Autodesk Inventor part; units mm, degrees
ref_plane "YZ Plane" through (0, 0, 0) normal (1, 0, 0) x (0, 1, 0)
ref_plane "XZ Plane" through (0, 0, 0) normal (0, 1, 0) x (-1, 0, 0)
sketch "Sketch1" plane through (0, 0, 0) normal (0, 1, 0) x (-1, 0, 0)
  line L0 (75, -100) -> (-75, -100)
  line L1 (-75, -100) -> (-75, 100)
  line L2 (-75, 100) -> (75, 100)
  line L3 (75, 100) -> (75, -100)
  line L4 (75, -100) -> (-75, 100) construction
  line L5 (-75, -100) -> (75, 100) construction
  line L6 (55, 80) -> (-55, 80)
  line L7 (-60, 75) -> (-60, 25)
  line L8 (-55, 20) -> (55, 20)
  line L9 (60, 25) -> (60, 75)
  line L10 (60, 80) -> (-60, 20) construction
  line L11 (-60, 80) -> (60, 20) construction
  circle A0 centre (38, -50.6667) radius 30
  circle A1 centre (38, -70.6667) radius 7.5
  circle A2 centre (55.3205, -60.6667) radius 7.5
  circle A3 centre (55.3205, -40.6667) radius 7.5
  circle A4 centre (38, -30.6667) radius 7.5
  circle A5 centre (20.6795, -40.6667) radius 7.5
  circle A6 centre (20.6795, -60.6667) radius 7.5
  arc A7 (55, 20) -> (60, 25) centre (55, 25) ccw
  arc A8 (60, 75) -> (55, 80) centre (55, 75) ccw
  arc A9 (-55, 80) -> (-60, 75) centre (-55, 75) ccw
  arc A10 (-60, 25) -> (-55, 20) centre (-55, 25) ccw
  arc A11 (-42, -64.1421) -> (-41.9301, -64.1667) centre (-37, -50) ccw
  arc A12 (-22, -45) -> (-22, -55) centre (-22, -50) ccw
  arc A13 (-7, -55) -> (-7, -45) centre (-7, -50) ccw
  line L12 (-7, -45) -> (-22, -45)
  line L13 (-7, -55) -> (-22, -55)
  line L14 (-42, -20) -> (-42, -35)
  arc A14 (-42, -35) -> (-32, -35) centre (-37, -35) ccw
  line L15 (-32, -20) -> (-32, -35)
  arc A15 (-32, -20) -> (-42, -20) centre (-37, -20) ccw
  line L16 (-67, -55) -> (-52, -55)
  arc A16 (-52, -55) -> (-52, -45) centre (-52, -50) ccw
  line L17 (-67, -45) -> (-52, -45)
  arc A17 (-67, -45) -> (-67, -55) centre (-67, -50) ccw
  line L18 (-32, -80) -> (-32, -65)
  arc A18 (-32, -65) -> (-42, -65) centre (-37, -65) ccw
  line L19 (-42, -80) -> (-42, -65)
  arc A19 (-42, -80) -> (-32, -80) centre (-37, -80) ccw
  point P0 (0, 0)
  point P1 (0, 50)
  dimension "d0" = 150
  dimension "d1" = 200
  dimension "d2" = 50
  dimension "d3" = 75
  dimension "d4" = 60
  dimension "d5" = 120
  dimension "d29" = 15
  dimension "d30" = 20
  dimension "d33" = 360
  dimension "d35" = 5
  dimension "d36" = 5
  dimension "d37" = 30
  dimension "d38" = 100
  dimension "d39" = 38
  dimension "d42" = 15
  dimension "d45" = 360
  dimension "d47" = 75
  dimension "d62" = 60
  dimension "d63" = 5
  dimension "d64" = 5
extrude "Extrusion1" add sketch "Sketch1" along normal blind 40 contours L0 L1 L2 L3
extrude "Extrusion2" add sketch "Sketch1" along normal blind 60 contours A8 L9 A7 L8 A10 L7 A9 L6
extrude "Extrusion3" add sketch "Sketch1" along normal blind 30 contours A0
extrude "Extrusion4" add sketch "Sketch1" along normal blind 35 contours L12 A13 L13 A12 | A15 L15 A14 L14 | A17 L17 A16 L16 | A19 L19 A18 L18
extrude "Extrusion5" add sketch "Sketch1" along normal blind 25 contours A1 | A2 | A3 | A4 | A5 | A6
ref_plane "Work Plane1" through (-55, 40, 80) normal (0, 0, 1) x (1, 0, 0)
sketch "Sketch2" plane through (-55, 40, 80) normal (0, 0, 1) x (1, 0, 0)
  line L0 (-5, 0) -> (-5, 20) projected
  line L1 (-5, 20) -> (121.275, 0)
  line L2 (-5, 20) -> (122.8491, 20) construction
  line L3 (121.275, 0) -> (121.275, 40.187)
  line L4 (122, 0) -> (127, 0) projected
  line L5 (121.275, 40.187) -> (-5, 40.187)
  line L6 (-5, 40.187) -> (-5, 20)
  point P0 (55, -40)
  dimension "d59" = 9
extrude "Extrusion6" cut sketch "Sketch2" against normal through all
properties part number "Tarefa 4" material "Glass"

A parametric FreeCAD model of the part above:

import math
import FreeCAD as App
import Part
import Sketcher
from FreeCAD import Vector
Q = App.Units.Quantity


def add_polygon(sketch, points):
    """Adds a closed chain of lines whose ends are joined by coincident constraints."""
    first, n = sketch.GeometryCount, len(points)
    for a, b in zip(points, points[1:] + points[:1]):
        sketch.addGeometry(Part.LineSegment(App.Vector(*a, 0), App.Vector(*b, 0)), False)
    for i in range(n):
        sketch.addConstraint(Sketcher.Constraint("Coincident", first + i, 2, first + (i + 1) % n, 1))

doc = App.newDocument("Part")
body = doc.addObject("PartDesign::Body", "Body")

# Sketch on XZ plane
sketch1 = body.newObject("Sketcher::SketchObject", "Sketch")
sketch1.AttachmentSupport = (doc.getObject("XZ_Plane"), [""])
sketch1.MapMode = "FlatFace"
add_polygon(sketch1, [(75, -100), (-75, -100), (-75, 100), (75, 100)])  # lines 0-3
sketch1.addGeometry(Part.LineSegment(Vector(32, -65, 0), Vector(32, -80, 0)), False)  # 4
sketch1.addGeometry(Part.ArcOfCircle(Part.Circle(Vector(37, -80, 0), Vector(0, 0, 1), 5), math.radians(180), math.radians(360)), False)  # 5
sketch1.addGeometry(Part.LineSegment(Vector(42, -80, 0), Vector(42, -65, 0)), False)  # 6
sketch1.addGeometry(Part.ArcOfCircle(Part.Circle(Vector(37, -65, 0), Vector(0, 0, 1), 5), math.radians(0), math.radians(180)), False)  # 7
sketch1.addGeometry(Part.LineSegment(Vector(52, -55, 0), Vector(67, -55, 0)), False)  # 8
sketch1.addGeometry(Part.ArcOfCircle(Part.Circle(Vector(67, -50, 0), Vector(0, 0, 1), 5), math.radians(-90), math.radians(90)), False)  # 9
sketch1.addGeometry(Part.LineSegment(Vector(67, -45, 0), Vector(52, -45, 0)), False)  # 10
sketch1.addGeometry(Part.ArcOfCircle(Part.Circle(Vector(52, -50, 0), Vector(0, 0, 1), 5), math.radians(90), math.radians(270)), False)  # 11
sketch1.addGeometry(Part.LineSegment(Vector(42, -35, 0), Vector(42, -20, 0)), False)  # 12
sketch1.addGeometry(Part.ArcOfCircle(Part.Circle(Vector(37, -20, 0), Vector(0, 0, 1), 5), math.radians(0), math.radians(180)), False)  # 13
sketch1.addGeometry(Part.LineSegment(Vector(32, -20, 0), Vector(32, -35, 0)), False)  # 14
sketch1.addGeometry(Part.ArcOfCircle(Part.Circle(Vector(37, -35, 0), Vector(0, 0, 1), 5), math.radians(180), math.radians(360)), False)  # 15
sketch1.addGeometry(Part.ArcOfCircle(Part.Circle(Vector(22, -50, 0), Vector(0, 0, 1), 5), math.radians(-90), math.radians(90)), False)  # 16
sketch1.addGeometry(Part.LineSegment(Vector(22, -45, 0), Vector(7, -45, 0)), False)  # 17
sketch1.addGeometry(Part.ArcOfCircle(Part.Circle(Vector(7, -50, 0), Vector(0, 0, 1), 5), math.radians(90), math.radians(270)), False)  # 18
sketch1.addGeometry(Part.LineSegment(Vector(7, -55, 0), Vector(22, -55, 0)), False)  # 19
sketch1.addGeometry(Part.Circle(Vector(-38, -50.6667, 0), Vector(0, 0, 1), 30), False)  # 20
sketch1.addGeometry(Part.LineSegment(Vector(55, 80, 0), Vector(-55, 80, 0)), False)  # 21
sketch1.addGeometry(Part.ArcOfCircle(Part.Circle(Vector(-55, 75, 0), Vector(0, 0, 1), 5), math.radians(90), math.radians(180)), False)  # 22
sketch1.addGeometry(Part.LineSegment(Vector(-60, 75, 0), Vector(-60, 25, 0)), False)  # 23
sketch1.addGeometry(Part.ArcOfCircle(Part.Circle(Vector(-55, 25, 0), Vector(0, 0, 1), 5), math.radians(180), math.radians(270)), False)  # 24
sketch1.addGeometry(Part.LineSegment(Vector(-55, 20, 0), Vector(55, 20, 0)), False)  # 25
sketch1.addGeometry(Part.ArcOfCircle(Part.Circle(Vector(55, 25, 0), Vector(0, 0, 1), 5), math.radians(-90), math.radians(0)), False)  # 26
sketch1.addGeometry(Part.LineSegment(Vector(60, 25, 0), Vector(60, 75, 0)), False)  # 27
sketch1.addGeometry(Part.ArcOfCircle(Part.Circle(Vector(55, 75, 0), Vector(0, 0, 1), 5), math.radians(0), math.radians(90)), False)  # 28
sketch1.addConstraint(Sketcher.Constraint("Tangent", 4, 2, 5, 1))
sketch1.addConstraint(Sketcher.Constraint("Tangent", 5, 2, 6, 1))
sketch1.addConstraint(Sketcher.Constraint("Tangent", 6, 2, 7, 1))
sketch1.addConstraint(Sketcher.Constraint("Tangent", 7, 2, 4, 1))
sketch1.addConstraint(Sketcher.Constraint("Tangent", 8, 2, 9, 1))
sketch1.addConstraint(Sketcher.Constraint("Tangent", 9, 2, 10, 1))
sketch1.addConstraint(Sketcher.Constraint("Tangent", 10, 2, 11, 1))
sketch1.addConstraint(Sketcher.Constraint("Tangent", 11, 2, 8, 1))
sketch1.addConstraint(Sketcher.Constraint("Tangent", 12, 2, 13, 1))
sketch1.addConstraint(Sketcher.Constraint("Tangent", 13, 2, 14, 1))
sketch1.addConstraint(Sketcher.Constraint("Tangent", 14, 2, 15, 1))
sketch1.addConstraint(Sketcher.Constraint("Tangent", 15, 2, 12, 1))
sketch1.addConstraint(Sketcher.Constraint("Tangent", 16, 2, 17, 1))
sketch1.addConstraint(Sketcher.Constraint("Tangent", 17, 2, 18, 1))
sketch1.addConstraint(Sketcher.Constraint("Tangent", 18, 2, 19, 1))
sketch1.addConstraint(Sketcher.Constraint("Tangent", 19, 2, 16, 1))
sketch1.addConstraint(Sketcher.Constraint("Tangent", 21, 2, 22, 1))
sketch1.addConstraint(Sketcher.Constraint("Tangent", 22, 2, 23, 1))
sketch1.addConstraint(Sketcher.Constraint("Tangent", 23, 2, 24, 1))
sketch1.addConstraint(Sketcher.Constraint("Tangent", 24, 2, 25, 1))
sketch1.addConstraint(Sketcher.Constraint("Tangent", 25, 2, 26, 1))
sketch1.addConstraint(Sketcher.Constraint("Tangent", 26, 2, 27, 1))
sketch1.addConstraint(Sketcher.Constraint("Tangent", 27, 2, 28, 1))
sketch1.addConstraint(Sketcher.Constraint("Tangent", 28, 2, 21, 1))
sketch1.addConstraint(Sketcher.Constraint("Horizontal", 0))
sketch1.addConstraint(Sketcher.Constraint("Vertical", 1))
sketch1.addConstraint(Sketcher.Constraint("Horizontal", 2))
sketch1.addConstraint(Sketcher.Constraint("Vertical", 3))
sketch1.addConstraint(Sketcher.Constraint("Vertical", 4))
sketch1.addConstraint(Sketcher.Constraint("Vertical", 6))
sketch1.addConstraint(Sketcher.Constraint("Horizontal", 8))
sketch1.addConstraint(Sketcher.Constraint("Horizontal", 10))
sketch1.addConstraint(Sketcher.Constraint("Vertical", 12))
sketch1.addConstraint(Sketcher.Constraint("Vertical", 14))
sketch1.addConstraint(Sketcher.Constraint("Horizontal", 17))
sketch1.addConstraint(Sketcher.Constraint("Horizontal", 19))
sketch1.addConstraint(Sketcher.Constraint("Horizontal", 21))
sketch1.addConstraint(Sketcher.Constraint("Vertical", 23))
sketch1.addConstraint(Sketcher.Constraint("Horizontal", 25))
sketch1.addConstraint(Sketcher.Constraint("Vertical", 27))
sketch1.addConstraint(Sketcher.Constraint("Equal", 7, 9))
sketch1.addConstraint(Sketcher.Constraint("Equal", 11, 13))
sketch1.addConstraint(Sketcher.Constraint("Equal", 15, 16))
sketch1.addConstraint(Sketcher.Constraint("Equal", 18, 22))
sketch1.addConstraint(Sketcher.Constraint("Equal", 22, 24))
sketch1.addConstraint(Sketcher.Constraint("Equal", 24, 26))
sketch1.addConstraint(Sketcher.Constraint("Equal", 26, 28))
sketch1.addConstraint(Sketcher.Constraint("Symmetric", 0, 2, 2, 2, -1, 1))
sketch1.addConstraint(Sketcher.Constraint("Horizontal", 11, 3, 16, 3))
sketch1.addConstraint(Sketcher.Constraint("Vertical", 7, 3, 13, 3))
sketch1.addConstraint(Sketcher.Constraint("Equal", 10, 17))
sketch1.addConstraint(Sketcher.Constraint("Equal", 19, 4))
sketch1.addConstraint(Sketcher.Constraint("Equal", 6, 12))
sketch1.addConstraint(Sketcher.Constraint("Diameter", 20, Q("60 mm")))
sketch1.addConstraint(Sketcher.Constraint("Radius", 5, Q("5 mm")))
sketch1.addConstraint(Sketcher.Constraint("DistanceX", 0, 2, 0, 1, Q("150 mm")))
sketch1.addConstraint(Sketcher.Constraint("DistanceX", 8, 1, 8, 2, Q("15 mm")))
sketch1.addConstraint(Sketcher.Constraint("DistanceY", 1, 1, 1, 2, Q("200 mm")))
sketch1.addConstraint(Sketcher.Constraint("DistanceY", 23, 2, 23, 1, Q("50 mm")))
sketch1.addConstraint(Sketcher.Constraint("DistanceY", 9, 3, -1, 1, Q("50 mm")))
sketch1.addConstraint(Sketcher.Constraint("DistanceY", 13, 3, -1, 1, Q("20 mm")))
sketch1.addConstraint(Sketcher.Constraint("DistanceX", 20, 3, -1, 1, Q("38 mm")))
sketch1.addConstraint(Sketcher.Constraint("DistanceY", -1, 1, 22, 3, Q("75 mm")))
sketch1.addConstraint(Sketcher.Constraint("DistanceX", 22, 2, -1, 1, Q("60 mm")))
sketch1.addConstraint(Sketcher.Constraint("DistanceX", -1, 1, 26, 2, Q("60 mm")))
sketch1.addConstraint(Sketcher.Constraint("DistanceX", 7, 3, 9, 3, Q("30 mm")))
sketch1.addConstraint(Sketcher.Constraint("DistanceY", 7, 3, 9, 3, Q("15 mm")))
sketch1.addConstraint(Sketcher.Constraint("DistanceX", 16, 3, 7, 3, Q("15 mm")))
sketch1.addConstraint(Sketcher.Constraint("DistanceX", 20, 3, 16, 3, Q("60 mm")))
sketch1.addConstraint(Sketcher.Constraint("DistanceY", 20, 3, -1, 1, Q("50.6667 mm")))
pad1 = body.newObject("PartDesign::Pad", "Pad")
pad1.Profile = sketch1
pad1.Length = 40
pad1.Reversed = True

# Sketch on XZ plane
sketch2 = body.newObject("Sketcher::SketchObject", "Sketch001")
sketch2.AttachmentSupport = (doc.getObject("XZ_Plane"), [""])
sketch2.MapMode = "FlatFace"
sketch2.addGeometry(Part.ArcOfCircle(Part.Circle(Vector(-55, 75, 0), Vector(0, 0, 1), 5), math.radians(90), math.radians(180)), False)
sketch2.addGeometry(Part.LineSegment(Vector(-55, 80, 0), Vector(55, 80, 0)), False)
sketch2.addGeometry(Part.ArcOfCircle(Part.Circle(Vector(55, 75, 0), Vector(0, 0, 1), 5), math.radians(0), math.radians(90)), False)
sketch2.addGeometry(Part.LineSegment(Vector(60, 75, 0), Vector(60, 25, 0)), False)
sketch2.addGeometry(Part.ArcOfCircle(Part.Circle(Vector(55, 25, 0), Vector(0, 0, 1), 5), math.radians(-90), math.radians(0)), False)
sketch2.addGeometry(Part.LineSegment(Vector(55, 20, 0), Vector(-55, 20, 0)), False)
sketch2.addGeometry(Part.ArcOfCircle(Part.Circle(Vector(-55, 25, 0), Vector(0, 0, 1), 5), math.radians(180), math.radians(270)), False)
sketch2.addGeometry(Part.LineSegment(Vector(-60, 25, 0), Vector(-60, 75, 0)), False)
sketch2.addConstraint(Sketcher.Constraint("Tangent", 0, 1, 1, 1))
sketch2.addConstraint(Sketcher.Constraint("Tangent", 1, 2, 2, 2))
sketch2.addConstraint(Sketcher.Constraint("Tangent", 2, 1, 3, 1))
sketch2.addConstraint(Sketcher.Constraint("Tangent", 3, 2, 4, 2))
sketch2.addConstraint(Sketcher.Constraint("Tangent", 4, 1, 5, 1))
sketch2.addConstraint(Sketcher.Constraint("Tangent", 5, 2, 6, 2))
sketch2.addConstraint(Sketcher.Constraint("Tangent", 6, 1, 7, 1))
sketch2.addConstraint(Sketcher.Constraint("Tangent", 7, 2, 0, 2))
sketch2.addConstraint(Sketcher.Constraint("Horizontal", 1))
sketch2.addConstraint(Sketcher.Constraint("Vertical", 3))
sketch2.addConstraint(Sketcher.Constraint("Horizontal", 5))
sketch2.addConstraint(Sketcher.Constraint("Vertical", 7))
sketch2.addConstraint(Sketcher.Constraint("Equal", 0, 2))
sketch2.addConstraint(Sketcher.Constraint("Equal", 2, 4))
sketch2.addConstraint(Sketcher.Constraint("Equal", 4, 6))
sketch2.addConstraint(Sketcher.Constraint("Radius", 0, Q("5 mm")))
sketch2.addConstraint(Sketcher.Constraint("DistanceY", 3, 2, 3, 1, Q("50 mm")))
sketch2.addConstraint(Sketcher.Constraint("DistanceY", -1, 1, 0, 3, Q("75 mm")))
sketch2.addConstraint(Sketcher.Constraint("DistanceX", -1, 1, 2, 1, Q("60 mm")))
sketch2.addConstraint(Sketcher.Constraint("DistanceX", 6, 1, -1, 1, Q("60 mm")))
pad2 = body.newObject("PartDesign::Pad", "Pad001")
pad2.Profile = sketch2
pad2.Length = 60
pad2.Reversed = True

# Sketch on XZ plane
sketch3 = body.newObject("Sketcher::SketchObject", "Sketch002")
sketch3.AttachmentSupport = (doc.getObject("XZ_Plane"), [""])
sketch3.MapMode = "FlatFace"
sketch3.addGeometry(Part.Circle(Vector(-38, -50.6667, 0), Vector(0, 0, 1), 30), False)
sketch3.addGeometry(Part.Circle(Vector(-20.6795, -60.6667, 0), Vector(0, 0, 1), 7.5), False)
sketch3.addGeometry(Part.Circle(Vector(-38, -70.6667, 0), Vector(0, 0, 1), 7.5), False)
sketch3.addGeometry(Part.Circle(Vector(-55.3205, -60.6667, 0), Vector(0, 0, 1), 7.5), False)
sketch3.addGeometry(Part.Circle(Vector(-20.6795, -40.6667, 0), Vector(0, 0, 1), 7.5), False)
sketch3.addGeometry(Part.Circle(Vector(-55.3205, -40.6667, 0), Vector(0, 0, 1), 7.5), False)
sketch3.addGeometry(Part.Circle(Vector(-38, -30.6667, 0), Vector(0, 0, 1), 7.5), False)
sketch3.addConstraint(Sketcher.Constraint("Equal", 1, 2))
sketch3.addConstraint(Sketcher.Constraint("Equal", 2, 3))
sketch3.addConstraint(Sketcher.Constraint("Equal", 3, 4))
sketch3.addConstraint(Sketcher.Constraint("Equal", 4, 5))
sketch3.addConstraint(Sketcher.Constraint("Equal", 5, 6))
sketch3.addConstraint(Sketcher.Constraint("Horizontal", 1, 3, 3, 3))
sketch3.addConstraint(Sketcher.Constraint("Horizontal", 4, 3, 5, 3))
sketch3.addConstraint(Sketcher.Constraint("Vertical", 0, 3, 2, 3))
sketch3.addConstraint(Sketcher.Constraint("Vertical", 1, 3, 4, 3))
sketch3.addConstraint(Sketcher.Constraint("Vertical", 3, 3, 5, 3))
sketch3.addConstraint(Sketcher.Constraint("Vertical", 2, 3, 6, 3))
sketch3.addConstraint(Sketcher.Constraint("Diameter", 0, Q("60 mm")))
sketch3.addConstraint(Sketcher.Constraint("Diameter", 1, Q("15 mm")))
sketch3.addConstraint(Sketcher.Constraint("DistanceX", 0, 3, -1, 1, Q("38 mm")))
sketch3.addConstraint(Sketcher.Constraint("DistanceY", 2, 3, 0, 3, Q("20 mm")))
sketch3.addConstraint(Sketcher.Constraint("DistanceY", 1, 3, 4, 3, Q("20 mm")))
sketch3.addConstraint(Sketcher.Constraint("DistanceY", 2, 3, 4, 3, Q("30 mm")))
sketch3.addConstraint(Sketcher.Constraint("DistanceY", 0, 3, 6, 3, Q("20 mm")))
sketch3.addConstraint(Sketcher.Constraint("DistanceX", 3, 3, 1, 3, Q("34.641 mm")))
sketch3.addConstraint(Sketcher.Constraint("DistanceY", 0, 3, -1, 1, Q("50.6667 mm")))
sketch3.addConstraint(Sketcher.Constraint("DistanceX", 1, 3, -1, 1, Q("20.6795 mm")))
pad3 = body.newObject("PartDesign::Pad", "Pad002")
pad3.Profile = sketch3
pad3.Length = 30
pad3.Reversed = True

# Sketch on XZ plane
sketch4 = body.newObject("Sketcher::SketchObject", "Sketch003")
sketch4.AttachmentSupport = (doc.getObject("XZ_Plane"), [""])
sketch4.MapMode = "FlatFace"
sketch4.addGeometry(Part.LineSegment(Vector(7, -45, 0), Vector(22, -45, 0)), False)
sketch4.addGeometry(Part.ArcOfCircle(Part.Circle(Vector(22, -50, 0), Vector(0, 0, 1), 5), math.radians(-90), math.radians(90)), False)
sketch4.addGeometry(Part.LineSegment(Vector(22, -55, 0), Vector(7, -55, 0)), False)
sketch4.addGeometry(Part.ArcOfCircle(Part.Circle(Vector(7, -50, 0), Vector(0, 0, 1), 5), math.radians(90), math.radians(270)), False)
sketch4.addGeometry(Part.ArcOfCircle(Part.Circle(Vector(37, -20, 0), Vector(0, 0, 1), 5), math.radians(0), math.radians(180)), False)
sketch4.addGeometry(Part.LineSegment(Vector(42, -20, 0), Vector(42, -35, 0)), False)
sketch4.addGeometry(Part.ArcOfCircle(Part.Circle(Vector(37, -35, 0), Vector(0, 0, 1), 5), math.radians(180), math.radians(360)), False)
sketch4.addGeometry(Part.LineSegment(Vector(32, -35, 0), Vector(32, -20, 0)), False)
sketch4.addGeometry(Part.ArcOfCircle(Part.Circle(Vector(67, -50, 0), Vector(0, 0, 1), 5), math.radians(-90), math.radians(90)), False)
sketch4.addGeometry(Part.LineSegment(Vector(67, -55, 0), Vector(52, -55, 0)), False)
sketch4.addGeometry(Part.ArcOfCircle(Part.Circle(Vector(52, -50, 0), Vector(0, 0, 1), 5), math.radians(90), math.radians(270)), False)
sketch4.addGeometry(Part.LineSegment(Vector(52, -45, 0), Vector(67, -45, 0)), False)
sketch4.addGeometry(Part.ArcOfCircle(Part.Circle(Vector(37, -80, 0), Vector(0, 0, 1), 5), math.radians(180), math.radians(360)), False)
sketch4.addGeometry(Part.LineSegment(Vector(32, -80, 0), Vector(32, -65, 0)), False)
sketch4.addGeometry(Part.ArcOfCircle(Part.Circle(Vector(37, -65, 0), Vector(0, 0, 1), 5), math.radians(0), math.radians(180)), False)
sketch4.addGeometry(Part.LineSegment(Vector(42, -65, 0), Vector(42, -80, 0)), False)
sketch4.addConstraint(Sketcher.Constraint("Tangent", 0, 2, 1, 2))
sketch4.addConstraint(Sketcher.Constraint("Tangent", 1, 1, 2, 1))
sketch4.addConstraint(Sketcher.Constraint("Tangent", 2, 2, 3, 2))
sketch4.addConstraint(Sketcher.Constraint("Tangent", 3, 1, 0, 1))
sketch4.addConstraint(Sketcher.Constraint("Tangent", 4, 1, 5, 1))
sketch4.addConstraint(Sketcher.Constraint("Tangent", 5, 2, 6, 2))
sketch4.addConstraint(Sketcher.Constraint("Tangent", 6, 1, 7, 1))
sketch4.addConstraint(Sketcher.Constraint("Tangent", 7, 2, 4, 2))
sketch4.addConstraint(Sketcher.Constraint("Tangent", 8, 1, 9, 1))
sketch4.addConstraint(Sketcher.Constraint("Tangent", 9, 2, 10, 2))
sketch4.addConstraint(Sketcher.Constraint("Tangent", 10, 1, 11, 1))
sketch4.addConstraint(Sketcher.Constraint("Tangent", 11, 2, 8, 2))
sketch4.addConstraint(Sketcher.Constraint("Tangent", 12, 1, 13, 1))
sketch4.addConstraint(Sketcher.Constraint("Tangent", 13, 2, 14, 2))
sketch4.addConstraint(Sketcher.Constraint("Tangent", 14, 1, 15, 1))
sketch4.addConstraint(Sketcher.Constraint("Tangent", 15, 2, 12, 2))
sketch4.addConstraint(Sketcher.Constraint("Horizontal", 0))
sketch4.addConstraint(Sketcher.Constraint("Horizontal", 2))
sketch4.addConstraint(Sketcher.Constraint("Vertical", 5))
sketch4.addConstraint(Sketcher.Constraint("Vertical", 7))
sketch4.addConstraint(Sketcher.Constraint("Horizontal", 9))
sketch4.addConstraint(Sketcher.Constraint("Horizontal", 11))
sketch4.addConstraint(Sketcher.Constraint("Vertical", 13))
sketch4.addConstraint(Sketcher.Constraint("Vertical", 15))
sketch4.addConstraint(Sketcher.Constraint("Equal", 3, 4))
sketch4.addConstraint(Sketcher.Constraint("Equal", 6, 8))
sketch4.addConstraint(Sketcher.Constraint("Equal", 10, 12))
sketch4.addConstraint(Sketcher.Constraint("Horizontal", 3, 3, 8, 3))
sketch4.addConstraint(Sketcher.Constraint("Vertical", 6, 3, 12, 3))
sketch4.addConstraint(Sketcher.Constraint("Equal", 2, 9))
sketch4.addConstraint(Sketcher.Constraint("Equal", 11, 5))
sketch4.addConstraint(Sketcher.Constraint("Equal", 7, 13))
sketch4.addConstraint(Sketcher.Constraint("Radius", 1, Q("5 mm")))
sketch4.addConstraint(Sketcher.Constraint("DistanceX", 0, 1, 0, 2, Q("15 mm")))
sketch4.addConstraint(Sketcher.Constraint("DistanceY", 1, 3, -1, 1, Q("50 mm")))
sketch4.addConstraint(Sketcher.Constraint("DistanceY", 4, 3, -1, 1, Q("20 mm")))
sketch4.addConstraint(Sketcher.Constraint("DistanceX", 1, 3, 4, 3, Q("15 mm")))
sketch4.addConstraint(Sketcher.Constraint("DistanceX", 6, 3, 8, 3, Q("30 mm")))
sketch4.addConstraint(Sketcher.Constraint("DistanceY", 12, 3, 1, 3, Q("30 mm")))
sketch4.addConstraint(Sketcher.Constraint("DistanceX", -1, 1, 1, 3, Q("22 mm")))
pad4 = body.newObject("PartDesign::Pad", "Pad003")
pad4.Profile = sketch4
pad4.Length = 35
pad4.Reversed = True

# Sketch on XZ plane
sketch5 = body.newObject("Sketcher::SketchObject", "Sketch004")
sketch5.AttachmentSupport = (doc.getObject("XZ_Plane"), [""])
sketch5.MapMode = "FlatFace"
sketch5.addGeometry(Part.Circle(Vector(-38, -70.6667, 0), Vector(0, 0, 1), 7.5), False)
sketch5.addGeometry(Part.Circle(Vector(-55.3205, -60.6667, 0), Vector(0, 0, 1), 7.5), False)
sketch5.addGeometry(Part.Circle(Vector(-55.3205, -40.6667, 0), Vector(0, 0, 1), 7.5), False)
sketch5.addGeometry(Part.Circle(Vector(-38, -30.6667, 0), Vector(0, 0, 1), 7.5), False)
sketch5.addGeometry(Part.Circle(Vector(-20.6795, -40.6667, 0), Vector(0, 0, 1), 7.5), False)
sketch5.addGeometry(Part.Circle(Vector(-20.6795, -60.6667, 0), Vector(0, 0, 1), 7.5), False)
sketch5.addConstraint(Sketcher.Constraint("Equal", 0, 1))
sketch5.addConstraint(Sketcher.Constraint("Equal", 1, 2))
sketch5.addConstraint(Sketcher.Constraint("Equal", 2, 3))
sketch5.addConstraint(Sketcher.Constraint("Equal", 3, 4))
sketch5.addConstraint(Sketcher.Constraint("Equal", 4, 5))
sketch5.addConstraint(Sketcher.Constraint("Horizontal", 2, 3, 4, 3))
sketch5.addConstraint(Sketcher.Constraint("Horizontal", 1, 3, 5, 3))
sketch5.addConstraint(Sketcher.Constraint("Vertical", 1, 3, 2, 3))
sketch5.addConstraint(Sketcher.Constraint("Vertical", 0, 3, 3, 3))
sketch5.addConstraint(Sketcher.Constraint("Vertical", 4, 3, 5, 3))
sketch5.addConstraint(Sketcher.Constraint("Diameter", 0, Q("15 mm")))
sketch5.addConstraint(Sketcher.Constraint("DistanceX", 0, 3, -1, 1, Q("38 mm")))
sketch5.addConstraint(Sketcher.Constraint("DistanceY", 1, 3, 2, 3, Q("20 mm")))
sketch5.addConstraint(Sketcher.Constraint("DistanceY", 0, 3, 2, 3, Q("30 mm")))
sketch5.addConstraint(Sketcher.Constraint("DistanceY", 1, 3, 3, 3, Q("30 mm")))
sketch5.addConstraint(Sketcher.Constraint("DistanceX", 2, 3, 4, 3, Q("34.641 mm")))
sketch5.addConstraint(Sketcher.Constraint("DistanceY", 0, 3, -1, 1, Q("70.6667 mm")))
sketch5.addConstraint(Sketcher.Constraint("DistanceX", 1, 3, -1, 1, Q("55.3205 mm")))
pad5 = body.newObject("PartDesign::Pad", "Pad004")
pad5.Profile = sketch5
pad5.Length = 25
pad5.Reversed = True

# Sketch on XY plane
sketch6 = body.newObject("Sketcher::SketchObject", "Sketch005")
sketch6.AttachmentSupport = (doc.getObject("XY_Plane"), [""])
sketch6.MapMode = "FlatFace"
sketch6.AttachmentOffset = App.Placement(Vector(0, 0, 80), App.Rotation())
add_polygon(sketch6, [(-60, 80.187), (-60, 60), (66.275, 40), (66.275, 80.187)])  # lines 0-3
sketch6.addConstraint(Sketcher.Constraint("Vertical", 0))
sketch6.addConstraint(Sketcher.Constraint("Vertical", 2))
sketch6.addConstraint(Sketcher.Constraint("Horizontal", 3))
sketch6.addConstraint(Sketcher.Constraint("Angle", 1, Q("-9 deg")))
sketch6.addConstraint(Sketcher.Constraint("DistanceX", 0, 2, -1, 1, Q("60 mm")))
sketch6.addConstraint(Sketcher.Constraint("DistanceY", -1, 1, 0, 2, Q("60 mm")))
sketch6.addConstraint(Sketcher.Constraint("DistanceY", -1, 1, 1, 2, Q("40 mm")))
sketch6.addConstraint(Sketcher.Constraint("DistanceY", 0, 2, 0, 1, Q("20.187 mm")))
pocket1 = body.newObject("PartDesign::Pocket", "Pocket")
pocket1.Profile = sketch6
pocket1.Type = "ThroughAll"

doc.recompute()
